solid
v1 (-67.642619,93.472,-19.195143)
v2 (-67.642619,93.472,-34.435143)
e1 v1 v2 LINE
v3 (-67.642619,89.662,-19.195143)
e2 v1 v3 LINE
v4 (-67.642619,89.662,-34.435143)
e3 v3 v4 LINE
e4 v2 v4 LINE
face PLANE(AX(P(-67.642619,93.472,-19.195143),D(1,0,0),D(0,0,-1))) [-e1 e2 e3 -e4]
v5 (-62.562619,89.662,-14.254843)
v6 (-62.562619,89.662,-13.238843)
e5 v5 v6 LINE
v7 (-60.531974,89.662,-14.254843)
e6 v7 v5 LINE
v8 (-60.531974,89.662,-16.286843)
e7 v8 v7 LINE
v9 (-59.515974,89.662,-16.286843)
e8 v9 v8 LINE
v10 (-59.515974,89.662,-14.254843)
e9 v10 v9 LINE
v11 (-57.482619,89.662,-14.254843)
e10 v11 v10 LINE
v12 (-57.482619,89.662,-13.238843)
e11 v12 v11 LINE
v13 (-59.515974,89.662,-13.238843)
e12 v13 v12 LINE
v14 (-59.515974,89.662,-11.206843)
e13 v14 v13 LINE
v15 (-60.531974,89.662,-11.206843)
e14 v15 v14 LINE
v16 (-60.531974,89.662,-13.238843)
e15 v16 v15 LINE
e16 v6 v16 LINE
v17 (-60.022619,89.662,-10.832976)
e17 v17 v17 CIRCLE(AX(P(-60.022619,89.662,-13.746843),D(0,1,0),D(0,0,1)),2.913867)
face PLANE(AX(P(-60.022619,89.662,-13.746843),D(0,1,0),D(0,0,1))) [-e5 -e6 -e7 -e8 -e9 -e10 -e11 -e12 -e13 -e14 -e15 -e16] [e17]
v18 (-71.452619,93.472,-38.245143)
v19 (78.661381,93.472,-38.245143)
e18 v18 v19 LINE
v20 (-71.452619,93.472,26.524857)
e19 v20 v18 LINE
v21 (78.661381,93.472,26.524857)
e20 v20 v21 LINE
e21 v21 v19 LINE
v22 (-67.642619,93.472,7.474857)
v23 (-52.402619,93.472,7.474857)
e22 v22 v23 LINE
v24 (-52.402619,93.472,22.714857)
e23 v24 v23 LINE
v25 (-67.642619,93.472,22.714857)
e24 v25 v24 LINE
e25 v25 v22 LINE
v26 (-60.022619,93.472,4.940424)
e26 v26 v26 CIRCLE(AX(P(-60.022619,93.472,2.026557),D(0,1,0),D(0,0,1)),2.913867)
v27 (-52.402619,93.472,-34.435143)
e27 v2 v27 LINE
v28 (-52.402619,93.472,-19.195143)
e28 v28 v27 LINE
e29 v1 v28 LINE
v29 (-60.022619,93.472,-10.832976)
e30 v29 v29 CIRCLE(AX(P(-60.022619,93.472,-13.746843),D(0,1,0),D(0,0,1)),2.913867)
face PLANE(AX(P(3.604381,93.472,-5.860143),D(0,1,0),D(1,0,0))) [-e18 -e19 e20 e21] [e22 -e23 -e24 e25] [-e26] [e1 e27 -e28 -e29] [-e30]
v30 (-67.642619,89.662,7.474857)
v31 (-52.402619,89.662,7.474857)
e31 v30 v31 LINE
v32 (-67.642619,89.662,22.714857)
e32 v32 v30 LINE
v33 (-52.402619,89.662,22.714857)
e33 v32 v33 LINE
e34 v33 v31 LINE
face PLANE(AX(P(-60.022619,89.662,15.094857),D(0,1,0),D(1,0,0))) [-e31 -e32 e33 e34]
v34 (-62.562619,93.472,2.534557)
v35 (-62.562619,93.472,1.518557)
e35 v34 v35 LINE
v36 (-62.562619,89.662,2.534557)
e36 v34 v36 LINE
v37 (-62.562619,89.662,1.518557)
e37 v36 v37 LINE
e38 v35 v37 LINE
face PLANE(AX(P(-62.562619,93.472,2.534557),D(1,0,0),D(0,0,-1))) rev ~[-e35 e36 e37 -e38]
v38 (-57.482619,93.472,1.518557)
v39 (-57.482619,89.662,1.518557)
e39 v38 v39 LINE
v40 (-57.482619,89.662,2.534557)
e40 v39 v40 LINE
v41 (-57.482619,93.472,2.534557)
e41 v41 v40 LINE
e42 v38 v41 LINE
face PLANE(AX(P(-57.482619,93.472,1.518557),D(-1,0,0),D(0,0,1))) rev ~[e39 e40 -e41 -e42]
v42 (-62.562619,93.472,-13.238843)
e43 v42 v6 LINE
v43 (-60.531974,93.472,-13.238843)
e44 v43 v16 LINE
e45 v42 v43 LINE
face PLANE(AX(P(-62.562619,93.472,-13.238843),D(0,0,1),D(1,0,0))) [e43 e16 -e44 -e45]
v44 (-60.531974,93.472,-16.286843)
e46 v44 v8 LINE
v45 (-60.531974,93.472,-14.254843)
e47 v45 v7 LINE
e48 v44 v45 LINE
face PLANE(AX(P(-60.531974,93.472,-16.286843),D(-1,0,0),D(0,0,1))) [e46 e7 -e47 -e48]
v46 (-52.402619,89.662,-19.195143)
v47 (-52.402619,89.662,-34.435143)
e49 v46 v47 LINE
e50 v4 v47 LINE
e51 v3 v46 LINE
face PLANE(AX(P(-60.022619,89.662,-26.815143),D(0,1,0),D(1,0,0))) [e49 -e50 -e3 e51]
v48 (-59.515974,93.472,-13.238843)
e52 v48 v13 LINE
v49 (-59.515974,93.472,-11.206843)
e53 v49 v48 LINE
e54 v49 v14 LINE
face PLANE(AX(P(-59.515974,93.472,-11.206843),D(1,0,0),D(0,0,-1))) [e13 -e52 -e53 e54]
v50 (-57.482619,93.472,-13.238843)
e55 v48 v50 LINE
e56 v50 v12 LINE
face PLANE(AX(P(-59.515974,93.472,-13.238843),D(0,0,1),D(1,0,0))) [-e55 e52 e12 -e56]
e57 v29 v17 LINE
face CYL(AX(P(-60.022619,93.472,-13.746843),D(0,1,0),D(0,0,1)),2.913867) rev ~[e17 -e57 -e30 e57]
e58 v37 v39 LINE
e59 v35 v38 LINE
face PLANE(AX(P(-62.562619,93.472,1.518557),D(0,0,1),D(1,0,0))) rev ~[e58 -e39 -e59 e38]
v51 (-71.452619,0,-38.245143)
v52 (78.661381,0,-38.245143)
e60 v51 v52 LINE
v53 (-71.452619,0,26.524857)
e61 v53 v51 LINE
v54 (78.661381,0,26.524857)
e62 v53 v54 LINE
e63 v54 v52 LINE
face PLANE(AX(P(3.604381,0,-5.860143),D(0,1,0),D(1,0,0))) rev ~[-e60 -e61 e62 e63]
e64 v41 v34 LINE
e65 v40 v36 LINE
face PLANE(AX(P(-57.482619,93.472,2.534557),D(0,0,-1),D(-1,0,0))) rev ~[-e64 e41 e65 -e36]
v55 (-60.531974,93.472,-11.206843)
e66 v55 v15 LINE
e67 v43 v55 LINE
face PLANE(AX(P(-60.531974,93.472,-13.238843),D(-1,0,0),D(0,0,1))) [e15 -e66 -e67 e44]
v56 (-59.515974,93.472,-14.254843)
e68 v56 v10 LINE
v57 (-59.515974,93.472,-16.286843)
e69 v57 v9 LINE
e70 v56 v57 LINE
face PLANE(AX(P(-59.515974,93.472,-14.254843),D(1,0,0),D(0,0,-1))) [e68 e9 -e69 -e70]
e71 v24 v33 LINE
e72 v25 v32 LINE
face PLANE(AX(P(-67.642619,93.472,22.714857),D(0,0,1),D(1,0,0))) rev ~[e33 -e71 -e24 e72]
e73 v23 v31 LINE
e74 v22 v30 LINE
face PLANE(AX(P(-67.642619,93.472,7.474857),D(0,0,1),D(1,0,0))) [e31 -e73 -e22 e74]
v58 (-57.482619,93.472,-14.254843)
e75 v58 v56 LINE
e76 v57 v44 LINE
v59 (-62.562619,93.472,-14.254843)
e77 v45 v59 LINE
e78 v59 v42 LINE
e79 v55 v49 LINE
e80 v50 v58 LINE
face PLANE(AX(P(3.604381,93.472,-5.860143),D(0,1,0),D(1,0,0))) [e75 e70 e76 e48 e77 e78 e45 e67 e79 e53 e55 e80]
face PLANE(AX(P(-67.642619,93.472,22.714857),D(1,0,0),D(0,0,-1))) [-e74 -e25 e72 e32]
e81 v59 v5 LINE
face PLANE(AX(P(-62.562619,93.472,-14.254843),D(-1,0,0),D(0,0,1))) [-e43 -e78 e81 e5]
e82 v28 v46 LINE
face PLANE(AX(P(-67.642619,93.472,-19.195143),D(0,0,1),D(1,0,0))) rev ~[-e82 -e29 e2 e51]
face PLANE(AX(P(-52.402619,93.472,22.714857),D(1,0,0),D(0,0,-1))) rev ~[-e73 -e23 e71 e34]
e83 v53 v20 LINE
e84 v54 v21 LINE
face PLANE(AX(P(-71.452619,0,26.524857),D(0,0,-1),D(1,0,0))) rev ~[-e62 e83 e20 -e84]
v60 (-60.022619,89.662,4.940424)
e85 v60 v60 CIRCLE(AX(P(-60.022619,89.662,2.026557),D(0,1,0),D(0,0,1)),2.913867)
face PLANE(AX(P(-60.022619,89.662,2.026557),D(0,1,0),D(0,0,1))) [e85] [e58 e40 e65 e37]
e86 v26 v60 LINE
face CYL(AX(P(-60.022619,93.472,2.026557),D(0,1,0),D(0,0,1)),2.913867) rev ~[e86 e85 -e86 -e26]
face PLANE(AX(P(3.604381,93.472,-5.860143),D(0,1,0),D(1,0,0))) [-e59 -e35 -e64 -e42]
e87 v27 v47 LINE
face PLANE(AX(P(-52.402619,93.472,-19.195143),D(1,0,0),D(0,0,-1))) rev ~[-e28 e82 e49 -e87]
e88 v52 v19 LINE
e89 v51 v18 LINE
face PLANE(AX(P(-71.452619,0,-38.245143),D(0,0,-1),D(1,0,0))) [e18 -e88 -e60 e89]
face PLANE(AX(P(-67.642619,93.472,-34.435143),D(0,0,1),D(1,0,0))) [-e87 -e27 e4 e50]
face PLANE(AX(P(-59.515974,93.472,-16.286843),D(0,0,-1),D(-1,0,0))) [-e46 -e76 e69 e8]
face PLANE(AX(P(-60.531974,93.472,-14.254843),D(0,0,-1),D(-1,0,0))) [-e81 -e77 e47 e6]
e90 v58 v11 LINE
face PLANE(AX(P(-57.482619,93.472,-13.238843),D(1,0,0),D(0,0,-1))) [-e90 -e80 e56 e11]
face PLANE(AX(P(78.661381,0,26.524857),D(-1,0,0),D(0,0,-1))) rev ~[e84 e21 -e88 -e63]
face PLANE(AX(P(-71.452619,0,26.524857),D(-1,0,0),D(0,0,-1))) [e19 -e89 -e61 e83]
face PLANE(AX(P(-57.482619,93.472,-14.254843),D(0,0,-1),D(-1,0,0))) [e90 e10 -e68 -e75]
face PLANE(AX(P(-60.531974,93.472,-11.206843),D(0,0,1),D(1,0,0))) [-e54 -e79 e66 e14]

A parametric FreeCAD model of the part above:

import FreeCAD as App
import Part
import Sketcher
from FreeCAD import Vector
Q = App.Units.Quantity


def add_polygon(sketch, points):
    """Adds a closed chain of lines whose ends are joined by coincident constraints."""
    first, n = sketch.GeometryCount, len(points)
    for a, b in zip(points, points[1:] + points[:1]):
        sketch.addGeometry(Part.LineSegment(App.Vector(*a, 0), App.Vector(*b, 0)), False)
    for i in range(n):
        sketch.addConstraint(Sketcher.Constraint("Coincident", first + i, 2, first + (i + 1) % n, 1))

doc = App.newDocument("Part")
body = doc.addObject("PartDesign::Body", "Body")

# Sketch on XZ plane
sketch1 = doc.addObject("Sketcher::SketchObject", "Sketch")
body.addObject(sketch1)
sketch1.AttachmentSupport = (doc.XZ_Plane, [""])
sketch1.MapMode = "FlatFace"
add_polygon(sketch1, [(-71, -38), (-71, 27), (79, 27), (79, -38)])  # lines 0-3
sketch1.addConstraint([
    Sketcher.Constraint("Vertical", 0),
    Sketcher.Constraint("Horizontal", 1),
    Sketcher.Constraint("Vertical", 2),
    Sketcher.Constraint("Horizontal", 3),
    Sketcher.Constraint("DistanceX", 1, 1, 1, 2, Q("5.91 in")),
    Sketcher.Constraint("DistanceY", 0, 1, 0, 2, Q("2.55 in")),
    Sketcher.Constraint("DistanceX", 0, 2, -1, 1, 71.452619),
    Sketcher.Constraint("DistanceY", -1, 1, 0, 2, 26.524857),
])
pad1 = doc.addObject("PartDesign::Pad", "Pad")
body.addObject(pad1)
pad1.Profile = sketch1
pad1.Length = Q("3.68 in")
pad1.Reversed = True

# Sketch on XZ plane
sketch2 = doc.addObject("Sketcher::SketchObject", "Sketch001")
body.addObject(sketch2)
sketch2.AttachmentSupport = (doc.XZ_Plane, [""])
sketch2.MapMode = "FlatFace"
sketch2.AttachmentOffset = App.Placement(Vector(0, 0, -3.68 * 25.4), App.Rotation())
sketch2.addGeometry(Part.Circle(Vector(-60, 2, 0), Vector(0, 0, 1), 2.9), False)  # 0
add_polygon(sketch2, [(-62.6, 1.5), (-57.5, 1.5), (-57.5, 2.5), (-62.6, 2.5)])  # lines 1-4
sketch2.addGeometry(Part.Circle(Vector(-60, -13.7, 0), Vector(0, 0, 1), 2.9), False)  # 5
add_polygon(sketch2, [(-57.5, -14.3), (-57.5, -13.2), (-59.5, -13.2), (-59.5, -11.2), (-60.5, -11.2), (-60.5, -13.2), (-62.6, -13.2), (-62.6, -14.3), (-60.5, -14.3), (-60.5, -16.3), (-59.5, -16.3), (-59.5, -14.3)])  # lines 6-17
add_polygon(sketch2, [(-67.6, 7.5), (-67.6, 22.7), (-52.4, 22.7), (-52.4, 7.5)])  # lines 18-21
add_polygon(sketch2, [(-67.6, -34.4), (-67.6, -19.2), (-52.4, -19.2), (-52.4, -34.4)])  # lines 22-25
sketch2.addConstraint([
    Sketcher.Constraint("Horizontal", 1),
    Sketcher.Constraint("Vertical", 2),
    Sketcher.Constraint("Horizontal", 3),
    Sketcher.Constraint("Vertical", 4),
    Sketcher.Constraint("Vertical", 6),
    Sketcher.Constraint("Horizontal", 7),
    Sketcher.Constraint("Vertical", 8),
    Sketcher.Constraint("Horizontal", 9),
    Sketcher.Constraint("Vertical", 10),
    Sketcher.Constraint("Horizontal", 11),
    Sketcher.Constraint("Vertical", 12),
    Sketcher.Constraint("Horizontal", 13),
    Sketcher.Constraint("Vertical", 14),
    Sketcher.Constraint("Horizontal", 15),
    Sketcher.Constraint("Vertical", 16),
    Sketcher.Constraint("Horizontal", 17),
    Sketcher.Constraint("Vertical", 18),
    Sketcher.Constraint("Horizontal", 19),
    Sketcher.Constraint("Vertical", 20),
    Sketcher.Constraint("Horizontal", 21),
    Sketcher.Constraint("Vertical", 22),
    Sketcher.Constraint("Horizontal", 23),
    Sketcher.Constraint("Vertical", 24),
    Sketcher.Constraint("Horizontal", 25),
    Sketcher.Constraint("Equal", 0, 5),
    Sketcher.Constraint("Horizontal", 7, 2, 10, 2),
    Sketcher.Constraint("Horizontal", 13, 2, 16, 2),
    Sketcher.Constraint("Vertical", 0, 3, 5, 3),
    Sketcher.Constraint("Vertical", 2, 2, 6, 2),
    Sketcher.Constraint("Vertical", 4, 2, 11, 2),
    Sketcher.Constraint("Vertical", 10, 2, 13, 2),
    Sketcher.Constraint("Vertical", 8, 2, 15, 2),
    Sketcher.Constraint("Vertical", 21, 2, 22, 2),
    Sketcher.Constraint("Vertical", 20, 2, 23, 2),
    Sketcher.Constraint("Equal", 15, 2),
    Sketcher.Constraint("Equal", 4, 6),
    Sketcher.Constraint("Equal", 10, 14),
    Sketcher.Constraint("Equal", 25, 18),
    Sketcher.Constraint("Equal", 20, 22),
    Sketcher.Constraint("DistanceX", 1, 1, 1, 2, Q("0.2 in")),
    Sketcher.Constraint("DistanceX", 19, 1, 19, 2, Q("0.6 in")),
    Sketcher.Constraint("DistanceX", 9, 2, 9, 1, Q("0.04 in")),
    Sketcher.Constraint("DistanceY", 8, 1, 8, 2, Q("0.08 in")),
    Sketcher.Constraint("DistanceX", 0, 3, 1, 2, Q("0.1 in")),
    Sketcher.Constraint("DistanceY", 5, 3, 8, 2, Q("0.1 in")),
    Sketcher.Constraint("DistanceX", 18, 2, 3, 2, Q("0.2 in")),
    Sketcher.Constraint("DistanceY", 1, 2, 0, 3, Q("0.02 in")),
    Sketcher.Constraint("DistanceY", 5, 3, 0, 3, Q("0.621 in")),
    Sketcher.Constraint("Diameter", 0, 5.827734),
    Sketcher.Constraint("DistanceY", 3, 2, 18, 2, Q("0.7945 in")),
    Sketcher.Constraint("DistanceY", 22, 2, 12, 2, Q("0.1945 in")),
    Sketcher.Constraint("DistanceX", 7, 2, 7, 1, 2.033355),
    Sketcher.Constraint("DistanceX", 0, 3, -1, 1, 60.022619),
    Sketcher.Constraint("DistanceY", -1, 1, 0, 3, 2.026557),
])
pocket1 = doc.addObject("PartDesign::Pocket", "Pocket")
body.addObject(pocket1)
pocket1.Profile = sketch2
pocket1.Length = Q("0.15 in")
pocket1.Reversed = True

doc.recompute()
